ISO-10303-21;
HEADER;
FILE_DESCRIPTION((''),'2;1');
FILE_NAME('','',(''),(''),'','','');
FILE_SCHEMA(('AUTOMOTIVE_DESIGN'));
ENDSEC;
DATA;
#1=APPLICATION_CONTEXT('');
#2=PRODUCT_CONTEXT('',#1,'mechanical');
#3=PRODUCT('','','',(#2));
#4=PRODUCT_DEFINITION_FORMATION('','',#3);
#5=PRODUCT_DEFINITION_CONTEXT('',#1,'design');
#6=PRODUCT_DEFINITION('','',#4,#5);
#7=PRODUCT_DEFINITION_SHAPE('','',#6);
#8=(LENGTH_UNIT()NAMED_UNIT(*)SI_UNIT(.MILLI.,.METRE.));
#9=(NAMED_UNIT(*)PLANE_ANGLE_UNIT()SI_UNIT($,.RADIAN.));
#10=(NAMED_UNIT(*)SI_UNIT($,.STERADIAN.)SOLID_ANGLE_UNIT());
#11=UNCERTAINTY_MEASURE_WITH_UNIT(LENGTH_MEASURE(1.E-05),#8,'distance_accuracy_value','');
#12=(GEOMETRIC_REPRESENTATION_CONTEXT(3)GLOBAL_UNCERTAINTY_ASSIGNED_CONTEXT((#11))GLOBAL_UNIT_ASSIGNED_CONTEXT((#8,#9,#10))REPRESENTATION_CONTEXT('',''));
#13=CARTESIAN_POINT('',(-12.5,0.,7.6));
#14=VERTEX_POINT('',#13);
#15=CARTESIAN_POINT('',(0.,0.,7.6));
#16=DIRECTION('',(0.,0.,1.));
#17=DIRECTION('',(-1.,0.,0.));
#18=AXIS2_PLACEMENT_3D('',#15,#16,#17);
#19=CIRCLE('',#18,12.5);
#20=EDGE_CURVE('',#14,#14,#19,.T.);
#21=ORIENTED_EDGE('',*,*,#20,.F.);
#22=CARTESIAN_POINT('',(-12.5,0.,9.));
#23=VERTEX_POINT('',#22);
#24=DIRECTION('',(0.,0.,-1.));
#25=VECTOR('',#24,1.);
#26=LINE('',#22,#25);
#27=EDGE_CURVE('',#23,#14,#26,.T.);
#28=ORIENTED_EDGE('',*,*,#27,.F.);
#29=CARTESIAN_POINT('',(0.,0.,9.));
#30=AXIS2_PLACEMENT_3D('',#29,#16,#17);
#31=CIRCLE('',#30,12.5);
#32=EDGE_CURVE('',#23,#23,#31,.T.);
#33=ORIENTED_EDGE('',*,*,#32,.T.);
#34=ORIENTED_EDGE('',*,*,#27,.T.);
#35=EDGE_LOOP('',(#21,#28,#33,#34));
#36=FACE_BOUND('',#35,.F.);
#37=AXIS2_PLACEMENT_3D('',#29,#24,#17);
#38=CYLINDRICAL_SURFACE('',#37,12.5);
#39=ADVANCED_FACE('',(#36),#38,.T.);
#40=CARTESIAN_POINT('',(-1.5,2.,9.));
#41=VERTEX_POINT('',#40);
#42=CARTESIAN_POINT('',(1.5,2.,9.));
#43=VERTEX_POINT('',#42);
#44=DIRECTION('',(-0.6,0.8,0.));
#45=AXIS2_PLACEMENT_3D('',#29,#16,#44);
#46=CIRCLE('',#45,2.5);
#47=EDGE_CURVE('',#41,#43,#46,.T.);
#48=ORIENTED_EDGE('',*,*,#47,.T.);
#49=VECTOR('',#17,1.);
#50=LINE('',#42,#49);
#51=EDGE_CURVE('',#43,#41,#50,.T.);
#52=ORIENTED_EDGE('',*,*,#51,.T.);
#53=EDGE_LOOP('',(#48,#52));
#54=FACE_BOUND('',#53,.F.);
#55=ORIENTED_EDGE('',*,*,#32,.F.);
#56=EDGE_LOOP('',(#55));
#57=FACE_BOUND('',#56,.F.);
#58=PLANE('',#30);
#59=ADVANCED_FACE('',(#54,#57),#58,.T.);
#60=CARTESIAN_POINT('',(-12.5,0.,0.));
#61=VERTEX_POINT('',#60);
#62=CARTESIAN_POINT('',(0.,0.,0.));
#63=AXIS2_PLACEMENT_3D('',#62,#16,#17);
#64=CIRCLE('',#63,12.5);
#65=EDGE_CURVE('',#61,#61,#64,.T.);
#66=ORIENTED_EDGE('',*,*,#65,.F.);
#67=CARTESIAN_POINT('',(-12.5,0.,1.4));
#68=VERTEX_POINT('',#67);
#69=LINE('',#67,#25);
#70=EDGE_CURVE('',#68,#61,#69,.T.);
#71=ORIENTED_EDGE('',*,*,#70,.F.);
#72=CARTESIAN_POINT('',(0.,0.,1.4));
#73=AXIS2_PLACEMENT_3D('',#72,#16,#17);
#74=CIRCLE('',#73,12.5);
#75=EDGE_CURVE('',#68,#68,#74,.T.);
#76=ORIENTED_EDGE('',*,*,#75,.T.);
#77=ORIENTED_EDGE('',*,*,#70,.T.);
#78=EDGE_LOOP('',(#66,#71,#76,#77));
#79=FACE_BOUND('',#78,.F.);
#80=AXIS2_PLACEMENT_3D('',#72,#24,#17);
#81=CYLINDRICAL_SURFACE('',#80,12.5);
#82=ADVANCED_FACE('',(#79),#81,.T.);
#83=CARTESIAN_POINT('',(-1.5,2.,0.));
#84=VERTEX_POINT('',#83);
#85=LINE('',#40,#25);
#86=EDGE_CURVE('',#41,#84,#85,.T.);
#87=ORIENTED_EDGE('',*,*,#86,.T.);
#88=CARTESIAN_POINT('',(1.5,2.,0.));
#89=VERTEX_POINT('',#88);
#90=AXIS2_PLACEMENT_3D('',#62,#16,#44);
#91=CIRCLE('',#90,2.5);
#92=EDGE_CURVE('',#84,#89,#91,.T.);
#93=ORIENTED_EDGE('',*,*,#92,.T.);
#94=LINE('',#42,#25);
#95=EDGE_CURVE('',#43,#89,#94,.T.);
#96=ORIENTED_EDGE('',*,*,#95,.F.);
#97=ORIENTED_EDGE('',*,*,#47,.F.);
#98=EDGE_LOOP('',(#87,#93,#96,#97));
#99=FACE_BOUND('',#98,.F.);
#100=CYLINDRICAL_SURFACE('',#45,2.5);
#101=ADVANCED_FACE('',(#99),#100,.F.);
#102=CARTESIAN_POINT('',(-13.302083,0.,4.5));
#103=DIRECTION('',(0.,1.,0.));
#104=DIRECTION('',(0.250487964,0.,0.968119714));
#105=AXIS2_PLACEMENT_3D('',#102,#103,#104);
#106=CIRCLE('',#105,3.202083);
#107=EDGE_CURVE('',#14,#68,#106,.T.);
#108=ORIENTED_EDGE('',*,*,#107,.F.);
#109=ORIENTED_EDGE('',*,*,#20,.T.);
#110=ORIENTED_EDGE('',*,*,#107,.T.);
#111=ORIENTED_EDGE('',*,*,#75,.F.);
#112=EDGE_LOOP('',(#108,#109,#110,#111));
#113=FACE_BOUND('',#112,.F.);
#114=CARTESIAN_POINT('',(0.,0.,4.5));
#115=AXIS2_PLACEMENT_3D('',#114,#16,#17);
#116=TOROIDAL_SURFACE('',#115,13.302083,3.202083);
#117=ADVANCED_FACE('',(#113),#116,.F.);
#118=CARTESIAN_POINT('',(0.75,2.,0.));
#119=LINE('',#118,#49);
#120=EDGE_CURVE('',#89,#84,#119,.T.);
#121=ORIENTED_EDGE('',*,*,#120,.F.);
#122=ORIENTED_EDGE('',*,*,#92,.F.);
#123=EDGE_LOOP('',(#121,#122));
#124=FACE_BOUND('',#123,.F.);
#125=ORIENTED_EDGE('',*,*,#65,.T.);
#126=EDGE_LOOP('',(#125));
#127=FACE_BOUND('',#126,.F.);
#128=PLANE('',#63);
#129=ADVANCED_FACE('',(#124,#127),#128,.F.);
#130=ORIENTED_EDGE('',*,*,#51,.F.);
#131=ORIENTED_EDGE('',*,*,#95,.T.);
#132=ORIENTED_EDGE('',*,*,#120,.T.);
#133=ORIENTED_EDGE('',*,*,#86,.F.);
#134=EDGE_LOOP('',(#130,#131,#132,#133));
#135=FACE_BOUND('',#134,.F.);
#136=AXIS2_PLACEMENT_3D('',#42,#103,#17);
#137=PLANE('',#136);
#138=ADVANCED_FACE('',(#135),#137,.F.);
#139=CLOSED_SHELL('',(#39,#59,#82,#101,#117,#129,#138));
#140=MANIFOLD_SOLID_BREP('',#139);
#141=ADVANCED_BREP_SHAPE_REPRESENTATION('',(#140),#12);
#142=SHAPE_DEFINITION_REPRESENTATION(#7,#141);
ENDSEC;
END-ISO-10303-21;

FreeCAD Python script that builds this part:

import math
import FreeCAD as App
import Part
import Sketcher
from FreeCAD import Vector
Q = App.Units.Quantity

doc = App.newDocument("Part")
params = doc.addObject("Spreadsheet::Sheet", "Params")
for row, (alias, value) in enumerate([
    ("sketch1_height", "9 mm"),
    ("sketch1_width", "12.5 mm"),
    ("sketch1_height2", "1.4 mm"),
    ("revolution_angle", "360 deg"),
    ("sketch2_radius", "2.5 mm"),
    ("sketch2_width", "3 mm"),
], start=1):
    params.set(f"A{row}", alias)
    params.set(f"B{row}", "=" + value)
    params.setAlias(f"B{row}", alias)

body = doc.addObject("PartDesign::Body", "Body")

# Sketch on XZ plane
sketch1 = doc.addObject("Sketcher::SketchObject", "Sketch")
body.addObject(sketch1)
sketch1.AttachmentSupport = (doc.XZ_Plane, [""])
sketch1.MapMode = "FlatFace"
sketch1.addGeometry([
    Part.LineSegment(Vector(-12.5, 0, 0), Vector(0, 0, 0)),  # 0
    Part.LineSegment(Vector(0, 0, 0), Vector(0, 9, 0)),  # 1
    Part.LineSegment(Vector(0, 9, 0), Vector(-12.5, 9, 0)),  # 2
    Part.LineSegment(Vector(-12.5, 9, 0), Vector(-12.5, 7.6, 0)),  # 3
    Part.ArcOfCircle(Part.Circle(Vector(-13.3, 4.5, 0), Vector(0, 0, 1), 3.2), math.radians(-75), math.radians(75)),  # 4
    Part.LineSegment(Vector(-12.5, 1.4, 0), Vector(-12.5, 0, 0)),  # 5
], False)
sketch1.addConstraint([
    Sketcher.Constraint("Coincident", 0, 2, 1, 1),
    Sketcher.Constraint("Coincident", 1, 2, 2, 1),
    Sketcher.Constraint("Coincident", 2, 2, 3, 1),
    Sketcher.Constraint("Coincident", 3, 2, 4, 2),
    Sketcher.Constraint("Coincident", 4, 1, 5, 1),
    Sketcher.Constraint("Coincident", 5, 2, 0, 1),
    Sketcher.Constraint("Horizontal", 0),
    Sketcher.Constraint("Vertical", 1),
    Sketcher.Constraint("Horizontal", 2),
    Sketcher.Constraint("Vertical", 3),
    Sketcher.Constraint("Vertical", 5),
    Sketcher.Constraint("Coincident", 0, 2, -1, 1),
    Sketcher.Constraint("Vertical", 3, 2, 4, 1),
    Sketcher.Constraint("Equal", 3, 5),
    Sketcher.Constraint("DistanceY", 1, 1, 1, 2, Q("9 mm")),
    Sketcher.Constraint("DistanceX", 0, 1, 0, 2, Q("12.5 mm")),
    Sketcher.Constraint("DistanceY", 3, 2, 3, 1, Q("1.4 mm")),
    Sketcher.Constraint("Radius", 4, Q("3.202083 mm")),
])
sketch1.setExpression("Constraints[14]", "Params.sketch1_height")
sketch1.setExpression("Constraints[15]", "Params.sketch1_width")
sketch1.setExpression("Constraints[16]", "Params.sketch1_height2")
revolution = doc.addObject("PartDesign::Revolution", "Revolution")
body.addObject(revolution)
revolution.Profile = sketch1
revolution.ReferenceAxis = (sketch1, ["V_Axis"])
revolution.setExpression("Angle", "Params.revolution_angle")

# Sketch on XY plane
sketch2 = doc.addObject("Sketcher::SketchObject", "Sketch001")
body.addObject(sketch2)
sketch2.AttachmentSupport = (doc.XY_Plane, [""])
sketch2.MapMode = "FlatFace"
sketch2.AttachmentOffset = App.Placement(Vector(0, 0, 9), App.Rotation())
sketch2.addGeometry([
    Part.LineSegment(Vector(1.5, 2, 0), Vector(-1.5, 2, 0)),
    Part.ArcOfCircle(Part.Circle(Vector(0, 0, 0), Vector(0, 0, 1), 2.5), math.radians(127), math.radians(413)),
], False)
sketch2.addConstraint([
    Sketcher.Constraint("Coincident", 0, 1, 1, 2),
    Sketcher.Constraint("Coincident", 1, 1, 0, 2),
    Sketcher.Constraint("Horizontal", 0),
    Sketcher.Constraint("Coincident", 1, 3, -1, 1),
    Sketcher.Constraint("Radius", 1, Q("2.5 mm")),
    Sketcher.Constraint("DistanceX", 0, 2, 0, 1, Q("3 mm")),
])
sketch2.setExpression("Constraints[4]", "Params.sketch2_radius")
sketch2.setExpression("Constraints[5]", "Params.sketch2_width")
pocket1 = doc.addObject("PartDesign::Pocket", "Pocket")
body.addObject(pocket1)
pocket1.Profile = sketch2
pocket1.Type = "ThroughAll"

doc.recompute()
